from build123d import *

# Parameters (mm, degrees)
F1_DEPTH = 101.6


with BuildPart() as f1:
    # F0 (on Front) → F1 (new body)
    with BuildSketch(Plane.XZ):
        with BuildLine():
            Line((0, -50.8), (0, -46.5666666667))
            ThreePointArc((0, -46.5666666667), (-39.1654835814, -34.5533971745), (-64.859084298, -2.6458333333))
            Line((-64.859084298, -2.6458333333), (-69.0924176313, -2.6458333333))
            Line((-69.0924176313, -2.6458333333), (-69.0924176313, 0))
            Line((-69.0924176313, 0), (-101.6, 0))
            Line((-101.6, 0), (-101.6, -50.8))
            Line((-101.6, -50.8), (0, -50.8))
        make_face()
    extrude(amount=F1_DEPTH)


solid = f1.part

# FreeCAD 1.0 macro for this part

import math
import FreeCAD as App
import Part
import Sketcher
from FreeCAD import Vector
Q = App.Units.Quantity

doc = App.newDocument("Part")
body = doc.addObject("PartDesign::Body", "Body")

# Sketch on XZ plane
sketch1 = body.newObject("Sketcher::SketchObject", "Sketch")
sketch1.AttachmentSupport = (doc.getObject("XZ_Plane"), [""])
sketch1.MapMode = "FlatFace"
sketch1.addGeometry([
    Part.LineSegment(Vector(0, -50.8, 0), Vector(0, -46.566667, 0)),  # 0
    Part.ArcOfCircle(Part.Circle(Vector(0, 23.283333, 0), Vector(0, 0, 1), 69.85), math.radians(-158.209609), math.radians(-90)),  # 1
    Part.LineSegment(Vector(-64.859084, -2.645833, 0), Vector(-69.092418, -2.645833, 0)),  # 2
    Part.LineSegment(Vector(-69.092418, -2.645833, 0), Vector(-69.092418, 0, 0)),  # 3
    Part.LineSegment(Vector(-69.092418, 0, 0), Vector(-101.6, 0, 0)),  # 4
    Part.LineSegment(Vector(-101.6, 0, 0), Vector(-101.6, -50.8, 0)),  # 5
    Part.LineSegment(Vector(-101.6, -50.8, 0), Vector(0, -50.8, 0)),  # 6
], False)
sketch1.addConstraint([
    Sketcher.Constraint("Coincident", 0, 2, 1, 2),
    Sketcher.Constraint("Coincident", 1, 1, 2, 1),
    Sketcher.Constraint("Coincident", 2, 2, 3, 1),
    Sketcher.Constraint("Coincident", 3, 2, 4, 1),
    Sketcher.Constraint("Coincident", 4, 2, 5, 1),
    Sketcher.Constraint("Coincident", 5, 2, 6, 1),
    Sketcher.Constraint("Coincident", 6, 2, 0, 1),
    Sketcher.Constraint("Vertical", 0),
    Sketcher.Constraint("Horizontal", 2),
    Sketcher.Constraint("Vertical", 3),
    Sketcher.Constraint("Horizontal", 4),
    Sketcher.Constraint("Vertical", 5),
    Sketcher.Constraint("Horizontal", 6),
    Sketcher.Constraint("PointOnObject", 1, 3, -2),
    Sketcher.Constraint("PointOnObject", 0, 2, -2),
    Sketcher.Constraint("PointOnObject", 3, 2, -1),
    Sketcher.Constraint("Equal", 2, 0),
    Sketcher.Constraint("DistanceX", 6, 1, 6, 2, Q("4 in")),
    Sketcher.Constraint("DistanceY", 5, 2, 5, 1, Q("2 in")),
    Sketcher.Constraint("Radius", 1, Q("2.75 in")),
    Sketcher.Constraint("DistanceX", 2, 2, 2, 1, 4.233333),
    Sketcher.Constraint("DistanceX", 4, 2, 4, 1, 32.507582),
])
pad1 = body.newObject("PartDesign::Pad", "Pad")
pad1.Profile = sketch1
pad1.Length = Q("4 in")

doc.recompute()
